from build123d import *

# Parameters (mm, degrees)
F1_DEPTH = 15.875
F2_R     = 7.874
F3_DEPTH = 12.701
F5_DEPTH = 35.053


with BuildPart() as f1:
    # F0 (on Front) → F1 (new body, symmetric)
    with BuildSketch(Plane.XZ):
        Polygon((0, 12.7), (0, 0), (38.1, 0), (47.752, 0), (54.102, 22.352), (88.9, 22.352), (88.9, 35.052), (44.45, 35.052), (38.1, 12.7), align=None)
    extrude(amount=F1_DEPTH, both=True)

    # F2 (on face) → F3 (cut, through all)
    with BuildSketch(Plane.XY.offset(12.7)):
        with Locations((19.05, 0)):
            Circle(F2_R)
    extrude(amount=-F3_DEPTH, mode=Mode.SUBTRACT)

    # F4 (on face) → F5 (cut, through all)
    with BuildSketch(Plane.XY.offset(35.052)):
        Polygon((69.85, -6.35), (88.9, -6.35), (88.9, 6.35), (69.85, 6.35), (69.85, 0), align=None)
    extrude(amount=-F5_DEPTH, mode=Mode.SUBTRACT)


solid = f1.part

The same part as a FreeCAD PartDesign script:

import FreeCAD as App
import Part
import Sketcher
from FreeCAD import Vector
Q = App.Units.Quantity


def add_polygon(sketch, points):
    """Adds a closed chain of lines whose ends are joined by coincident constraints."""
    first, n = sketch.GeometryCount, len(points)
    for a, b in zip(points, points[1:] + points[:1]):
        sketch.addGeometry(Part.LineSegment(App.Vector(*a, 0), App.Vector(*b, 0)), False)
    for i in range(n):
        sketch.addConstraint(Sketcher.Constraint("Coincident", first + i, 2, first + (i + 1) % n, 1))

doc = App.newDocument("Part")
body = doc.addObject("PartDesign::Body", "Body")

sketch1 = doc.addObject("Sketcher::SketchObject", "Sketch")
body.addObject(sketch1)
sketch1.AttachmentSupport = (doc.XZ_Plane, [""])
sketch1.MapMode = "FlatFace"
add_polygon(sketch1, [(0, 13), (0, 0), (48, 0), (54, 22), (89, 22), (89, 35), (44, 35), (38, 13)])
sketch1.addConstraint(Sketcher.Constraint("Vertical", 0))
sketch1.addConstraint(Sketcher.Constraint("Horizontal", 1))
sketch1.addConstraint(Sketcher.Constraint("Horizontal", 3))
sketch1.addConstraint(Sketcher.Constraint("Vertical", 4))
sketch1.addConstraint(Sketcher.Constraint("Horizontal", 5))
sketch1.addConstraint(Sketcher.Constraint("Horizontal", 7))
sketch1.addConstraint(Sketcher.Constraint("Coincident", 0, 2, -1, 1))
sketch1.addConstraint(Sketcher.Constraint("Parallel", 2, 6))
sketch1.addConstraint(Sketcher.Constraint("Equal", 0, 4))
sketch1.addConstraint(Sketcher.Constraint("DistanceX", 7, 2, 7, 1, Q("1.5 in")))
sketch1.addConstraint(Sketcher.Constraint("DistanceY", 0, 2, 0, 1, Q("0.5 in")))
sketch1.addConstraint(Sketcher.Constraint("DistanceX", 6, 2, 3, 2, Q("2 in")))
sketch1.addConstraint(Sketcher.Constraint("DistanceX", 1, 1, 1, 2, Q("1.88 in")))
sketch1.addConstraint(Sketcher.Constraint("DistanceX", 3, 1, 3, 2, Q("1.37 in")))
sketch1.addConstraint(Sketcher.Constraint("DistanceY", -1, 1, 2, 2, Q("0.88 in")))
pad1 = doc.addObject("PartDesign::Pad", "Pad")
body.addObject(pad1)
pad1.Profile = sketch1
pad1.Length = Q("1.25 in")
pad1.Midplane = True

sketch2 = doc.addObject("Sketcher::SketchObject", "Sketch001")
body.addObject(sketch2)
sketch2.AttachmentSupport = (doc.XY_Plane, [""])
sketch2.MapMode = "FlatFace"
sketch2.AttachmentOffset = App.Placement(Vector(0, 0, 0.5 * 25.4), App.Rotation())
sketch2.addGeometry(Part.Circle(Vector(19, 0, 0), Vector(0, 0, 1), 8), False)
sketch2.addConstraint(Sketcher.Constraint("PointOnObject", 0, 3, -1))
sketch2.addConstraint(Sketcher.Constraint("Diameter", 0, Q("0.62 in")))
sketch2.addConstraint(Sketcher.Constraint("DistanceX", -1, 1, 0, 3, Q("0.75 in")))
pocket1 = doc.addObject("PartDesign::Pocket", "Pocket")
body.addObject(pocket1)
pocket1.Profile = sketch2
pocket1.Type = "ThroughAll"

sketch3 = doc.addObject("Sketcher::SketchObject", "Sketch002")
body.addObject(sketch3)
sketch3.AttachmentSupport = (doc.XY_Plane, [""])
sketch3.MapMode = "FlatFace"
sketch3.AttachmentOffset = App.Placement(Vector(0, 0, 1.38 * 25.4), App.Rotation())
add_polygon(sketch3, [(70, -6), (89, -6), (89, 6), (70, 6)])
sketch3.addConstraint(Sketcher.Constraint("Horizontal", 0))
sketch3.addConstraint(Sketcher.Constraint("Vertical", 1))
sketch3.addConstraint(Sketcher.Constraint("Horizontal", 2))
sketch3.addConstraint(Sketcher.Constraint("Vertical", 3))
sketch3.addConstraint(Sketcher.Constraint("DistanceY", 1, 1, 1, 2, Q("0.5 in")))
sketch3.addConstraint(Sketcher.Constraint("DistanceX", 0, 1, 0, 2, Q("0.75 in")))
sketch3.addConstraint(Sketcher.Constraint("DistanceX", -1, 1, 0, 2, Q("3.5 in")))
sketch3.addConstraint(Sketcher.Constraint("DistanceY", 0, 2, -1, 1, Q("0.25 in")))
pocket2 = doc.addObject("PartDesign::Pocket", "Pocket001")
body.addObject(pocket2)
pocket2.Profile = sketch3
pocket2.Type = "ThroughAll"

doc.recompute()
